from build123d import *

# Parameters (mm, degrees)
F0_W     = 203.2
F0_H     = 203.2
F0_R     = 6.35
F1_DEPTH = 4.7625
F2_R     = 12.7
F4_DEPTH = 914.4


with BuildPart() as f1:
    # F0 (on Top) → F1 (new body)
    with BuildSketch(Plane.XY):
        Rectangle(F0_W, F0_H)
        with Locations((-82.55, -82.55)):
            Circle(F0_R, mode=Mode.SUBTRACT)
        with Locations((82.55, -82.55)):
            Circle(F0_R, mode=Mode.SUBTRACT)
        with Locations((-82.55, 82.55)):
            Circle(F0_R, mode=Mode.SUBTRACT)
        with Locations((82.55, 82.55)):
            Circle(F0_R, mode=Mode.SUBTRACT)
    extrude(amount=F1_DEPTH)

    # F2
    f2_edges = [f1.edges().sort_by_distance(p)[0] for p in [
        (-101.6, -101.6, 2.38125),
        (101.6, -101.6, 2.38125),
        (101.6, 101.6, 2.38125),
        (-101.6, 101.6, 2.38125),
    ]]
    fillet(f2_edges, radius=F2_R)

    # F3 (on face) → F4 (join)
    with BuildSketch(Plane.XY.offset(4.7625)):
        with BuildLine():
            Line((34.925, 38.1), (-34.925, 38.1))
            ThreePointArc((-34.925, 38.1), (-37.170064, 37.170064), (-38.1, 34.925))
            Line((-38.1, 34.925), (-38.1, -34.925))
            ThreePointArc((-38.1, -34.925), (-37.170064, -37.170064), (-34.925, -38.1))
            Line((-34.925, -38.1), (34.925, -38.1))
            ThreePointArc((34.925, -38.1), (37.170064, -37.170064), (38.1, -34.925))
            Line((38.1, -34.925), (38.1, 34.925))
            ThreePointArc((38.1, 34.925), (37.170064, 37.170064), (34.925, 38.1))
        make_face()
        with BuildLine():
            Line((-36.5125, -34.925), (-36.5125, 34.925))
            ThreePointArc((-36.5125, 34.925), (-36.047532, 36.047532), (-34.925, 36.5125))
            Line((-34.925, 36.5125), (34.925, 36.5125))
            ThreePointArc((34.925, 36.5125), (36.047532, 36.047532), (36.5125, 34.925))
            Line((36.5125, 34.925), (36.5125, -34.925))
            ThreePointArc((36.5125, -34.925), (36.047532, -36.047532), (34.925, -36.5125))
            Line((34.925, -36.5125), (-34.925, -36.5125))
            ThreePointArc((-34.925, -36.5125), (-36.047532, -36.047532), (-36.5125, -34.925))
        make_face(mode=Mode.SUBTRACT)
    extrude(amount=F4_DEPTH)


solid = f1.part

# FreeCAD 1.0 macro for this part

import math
import FreeCAD as App
import Part
import Sketcher

V = App.Vector
Q = App.Units.Quantity


def edges_at(feature, points):
    """Names of the edges that pass closest to the given points."""
    edges = feature.Shape.Edges
    near = lambda p: min(range(len(edges)), key=lambda i: edges[i].distToShape(Part.Vertex(*p))[0])
    return sorted({f"Edge{near(p) + 1}" for p in points})

doc = App.newDocument("Part")
params = doc.addObject("Spreadsheet::Sheet", "Params")
for row, (alias, value) in enumerate([
    ("sketch1_diameter", "0.5 in"),
    ("sketch1_width", "8 in"),
    ("pad1_length", "0.1875 in"),
    ("fillet_radius", "0.5 in"),
    ("sketch2_radius", "0.125 in"),
    ("sketch2_radius2", "0.0625 in"),
    ("sketch2_width", "2.75 in"),
    ("pad2_length", "36 in"),
], start=1):
    params.set(f"A{row}", alias)
    params.set(f"B{row}", "=" + value)
    params.setAlias(f"B{row}", alias)

body = doc.addObject("PartDesign::Body", "Body")

sketch1 = body.newObject("Sketcher::SketchObject", "Sketch")
sketch1.AttachmentSupport = (doc.getObject("XY_Plane"), [""])
sketch1.MapMode = "FlatFace"
sketch1.addGeometry([
    Part.LineSegment(V(-102, 102, 0), V(-102, -102, 0)),
    Part.LineSegment(V(-102, -102, 0), V(102, -102, 0)),
    Part.LineSegment(V(102, -102, 0), V(102, 102, 0)),
    Part.LineSegment(V(102, 102, 0), V(-102, 102, 0)),
    Part.Circle(V(-83, -83, 0), V(0, 0, 1), 6),
    Part.Circle(V(83, -83, 0), V(0, 0, 1), 6),
    Part.Circle(V(-83, 83, 0), V(0, 0, 1), 6),
    Part.Circle(V(83, 83, 0), V(0, 0, 1), 6),
], False)
sketch1.addConstraint([
    Sketcher.Constraint("Coincident", 0, 2, 1, 1),
    Sketcher.Constraint("Coincident", 1, 2, 2, 1),
    Sketcher.Constraint("Coincident", 2, 2, 3, 1),
    Sketcher.Constraint("Coincident", 3, 2, 0, 1),
    Sketcher.Constraint("Vertical", 0),
    Sketcher.Constraint("Horizontal", 1),
    Sketcher.Constraint("Vertical", 2),
    Sketcher.Constraint("Horizontal", 3),
    Sketcher.Constraint("Equal", 4, 5),
    Sketcher.Constraint("Equal", 5, 6),
    Sketcher.Constraint("Equal", 6, 7),
    Sketcher.Constraint("Symmetric", 5, 3, 6, 3, -1, 1),
    Sketcher.Constraint("Symmetric", 4, 3, 7, 3, -1, 1),
    Sketcher.Constraint("Symmetric", 0, 2, 2, 2, -1, 1),
    Sketcher.Constraint("Symmetric", 4, 3, 5, 3, -2),
    Sketcher.Constraint("Equal", 3, 0),
    Sketcher.Constraint("Diameter", 4, Q("0.5 in")),
    Sketcher.Constraint("DistanceX", 1, 1, 1, 2, Q("8 in")),
    Sketcher.Constraint("DistanceX", 4, 3, 5, 3, Q("6.5 in")),
    Sketcher.Constraint("DistanceY", 4, 3, 6, 3, Q("6.5 in")),
])
sketch1.setExpression("Constraints[16]", "Params.sketch1_diameter")
sketch1.setExpression("Constraints[17]", "Params.sketch1_width")
pad1 = body.newObject("PartDesign::Pad", "Pad")
pad1.Profile = sketch1
pad1.setExpression("Length", "Params.pad1_length")
doc.recompute()

fillet = body.newObject("PartDesign::Fillet", "Fillet")
fillet.Base = (pad1, edges_at(pad1, [
    (-101.6, -101.6, 2.381),
    (101.6, -101.6, 2.381),
    (101.6, 101.6, 2.381),
    (-101.6, 101.6, 2.381),
]))
fillet.setExpression("Radius", "Params.fillet_radius")

sketch2 = body.newObject("Sketcher::SketchObject", "Sketch001")
sketch2.AttachmentSupport = (doc.getObject("XY_Plane"), [""])
sketch2.MapMode = "FlatFace"
sketch2.AttachmentOffset = App.Placement(V(0, 0, 0.1875 * 25.4), App.Rotation())
sketch2.addGeometry([
    Part.LineSegment(V(34.9, 38.1, 0), V(-34.9, 38.1, 0)),
    Part.ArcOfCircle(Part.Circle(V(-34.9, 34.9, 0), V(0, 0, 1), 3.2), math.radians(90), math.radians(180)),
    Part.LineSegment(V(-38.1, 34.9, 0), V(-38.1, -34.9, 0)),
    Part.ArcOfCircle(Part.Circle(V(-34.9, -34.9, 0), V(0, 0, 1), 3.2), math.radians(-180), math.radians(-90)),
    Part.LineSegment(V(-34.9, -38.1, 0), V(34.9, -38.1, 0)),
    Part.ArcOfCircle(Part.Circle(V(34.9, -34.9, 0), V(0, 0, 1), 3.2), math.radians(-90), math.radians(0)),
    Part.LineSegment(V(38.1, -34.9, 0), V(38.1, 34.9, 0)),
    Part.ArcOfCircle(Part.Circle(V(34.9, 34.9, 0), V(0, 0, 1), 3.2), math.radians(0), math.radians(90)),
    Part.ArcOfCircle(Part.Circle(V(-34.9, -34.9, 0), V(0, 0, 1), 1.6), math.radians(-180), math.radians(-90)),
    Part.LineSegment(V(-36.5, -34.9, 0), V(-36.5, 34.9, 0)),
    Part.ArcOfCircle(Part.Circle(V(-34.9, 34.9, 0), V(0, 0, 1), 1.6), math.radians(90), math.radians(180)),
    Part.LineSegment(V(-34.9, 36.5, 0), V(34.9, 36.5, 0)),
    Part.ArcOfCircle(Part.Circle(V(34.9, 34.9, 0), V(0, 0, 1), 1.6), math.radians(0), math.radians(90)),
    Part.LineSegment(V(36.5, 34.9, 0), V(36.5, -34.9, 0)),
    Part.ArcOfCircle(Part.Circle(V(34.9, -34.9, 0), V(0, 0, 1), 1.6), math.radians(-90), math.radians(0)),
    Part.LineSegment(V(34.9, -36.5, 0), V(-34.9, -36.5, 0)),
], False)
sketch2.addConstraint([
    Sketcher.Constraint("Tangent", 0, 2, 1, 1),
    Sketcher.Constraint("Tangent", 1, 2, 2, 1),
    Sketcher.Constraint("Tangent", 2, 2, 3, 1),
    Sketcher.Constraint("Tangent", 3, 2, 4, 1),
    Sketcher.Constraint("Tangent", 4, 2, 5, 1),
    Sketcher.Constraint("Tangent", 5, 2, 6, 1),
    Sketcher.Constraint("Tangent", 6, 2, 7, 1),
    Sketcher.Constraint("Tangent", 7, 2, 0, 1),
    Sketcher.Constraint("Tangent", 8, 1, 9, 1),
    Sketcher.Constraint("Tangent", 9, 2, 10, 2),
    Sketcher.Constraint("Tangent", 10, 1, 11, 1),
    Sketcher.Constraint("Tangent", 11, 2, 12, 2),
    Sketcher.Constraint("Tangent", 12, 1, 13, 1),
    Sketcher.Constraint("Tangent", 13, 2, 14, 2),
    Sketcher.Constraint("Tangent", 14, 1, 15, 1),
    Sketcher.Constraint("Tangent", 15, 2, 8, 2),
    Sketcher.Constraint("Horizontal", 0),
    Sketcher.Constraint("Vertical", 2),
    Sketcher.Constraint("Horizontal", 4),
    Sketcher.Constraint("Vertical", 6),
    Sketcher.Constraint("Vertical", 9),
    Sketcher.Constraint("Horizontal", 11),
    Sketcher.Constraint("Vertical", 13),
    Sketcher.Constraint("Horizontal", 15),
    Sketcher.Constraint("Coincident", 8, 3, 3, 3),
    Sketcher.Constraint("Coincident", 10, 3, 1, 3),
    Sketcher.Constraint("Coincident", 12, 3, 7, 3),
    Sketcher.Constraint("Equal", 1, 3),
    Sketcher.Constraint("Equal", 3, 5),
    Sketcher.Constraint("Equal", 5, 7),
    Sketcher.Constraint("Equal", 12, 14),
    Sketcher.Constraint("Symmetric", 1, 3, 5, 3, -1, 1),
    Sketcher.Constraint("Equal", 15, 2),
    Sketcher.Constraint("Radius", 1, Q("0.125 in")),
    Sketcher.Constraint("Radius", 8, Q("0.0625 in")),
    Sketcher.Constraint("DistanceX", 0, 2, 0, 1, Q("2.75 in")),
])
sketch2.setExpression("Constraints[33]", "Params.sketch2_radius")
sketch2.setExpression("Constraints[34]", "Params.sketch2_radius2")
sketch2.setExpression("Constraints[35]", "Params.sketch2_width")
pad2 = body.newObject("PartDesign::Pad", "Pad001")
pad2.Profile = sketch2
pad2.setExpression("Length", "Params.pad2_length")

doc.recompute()
